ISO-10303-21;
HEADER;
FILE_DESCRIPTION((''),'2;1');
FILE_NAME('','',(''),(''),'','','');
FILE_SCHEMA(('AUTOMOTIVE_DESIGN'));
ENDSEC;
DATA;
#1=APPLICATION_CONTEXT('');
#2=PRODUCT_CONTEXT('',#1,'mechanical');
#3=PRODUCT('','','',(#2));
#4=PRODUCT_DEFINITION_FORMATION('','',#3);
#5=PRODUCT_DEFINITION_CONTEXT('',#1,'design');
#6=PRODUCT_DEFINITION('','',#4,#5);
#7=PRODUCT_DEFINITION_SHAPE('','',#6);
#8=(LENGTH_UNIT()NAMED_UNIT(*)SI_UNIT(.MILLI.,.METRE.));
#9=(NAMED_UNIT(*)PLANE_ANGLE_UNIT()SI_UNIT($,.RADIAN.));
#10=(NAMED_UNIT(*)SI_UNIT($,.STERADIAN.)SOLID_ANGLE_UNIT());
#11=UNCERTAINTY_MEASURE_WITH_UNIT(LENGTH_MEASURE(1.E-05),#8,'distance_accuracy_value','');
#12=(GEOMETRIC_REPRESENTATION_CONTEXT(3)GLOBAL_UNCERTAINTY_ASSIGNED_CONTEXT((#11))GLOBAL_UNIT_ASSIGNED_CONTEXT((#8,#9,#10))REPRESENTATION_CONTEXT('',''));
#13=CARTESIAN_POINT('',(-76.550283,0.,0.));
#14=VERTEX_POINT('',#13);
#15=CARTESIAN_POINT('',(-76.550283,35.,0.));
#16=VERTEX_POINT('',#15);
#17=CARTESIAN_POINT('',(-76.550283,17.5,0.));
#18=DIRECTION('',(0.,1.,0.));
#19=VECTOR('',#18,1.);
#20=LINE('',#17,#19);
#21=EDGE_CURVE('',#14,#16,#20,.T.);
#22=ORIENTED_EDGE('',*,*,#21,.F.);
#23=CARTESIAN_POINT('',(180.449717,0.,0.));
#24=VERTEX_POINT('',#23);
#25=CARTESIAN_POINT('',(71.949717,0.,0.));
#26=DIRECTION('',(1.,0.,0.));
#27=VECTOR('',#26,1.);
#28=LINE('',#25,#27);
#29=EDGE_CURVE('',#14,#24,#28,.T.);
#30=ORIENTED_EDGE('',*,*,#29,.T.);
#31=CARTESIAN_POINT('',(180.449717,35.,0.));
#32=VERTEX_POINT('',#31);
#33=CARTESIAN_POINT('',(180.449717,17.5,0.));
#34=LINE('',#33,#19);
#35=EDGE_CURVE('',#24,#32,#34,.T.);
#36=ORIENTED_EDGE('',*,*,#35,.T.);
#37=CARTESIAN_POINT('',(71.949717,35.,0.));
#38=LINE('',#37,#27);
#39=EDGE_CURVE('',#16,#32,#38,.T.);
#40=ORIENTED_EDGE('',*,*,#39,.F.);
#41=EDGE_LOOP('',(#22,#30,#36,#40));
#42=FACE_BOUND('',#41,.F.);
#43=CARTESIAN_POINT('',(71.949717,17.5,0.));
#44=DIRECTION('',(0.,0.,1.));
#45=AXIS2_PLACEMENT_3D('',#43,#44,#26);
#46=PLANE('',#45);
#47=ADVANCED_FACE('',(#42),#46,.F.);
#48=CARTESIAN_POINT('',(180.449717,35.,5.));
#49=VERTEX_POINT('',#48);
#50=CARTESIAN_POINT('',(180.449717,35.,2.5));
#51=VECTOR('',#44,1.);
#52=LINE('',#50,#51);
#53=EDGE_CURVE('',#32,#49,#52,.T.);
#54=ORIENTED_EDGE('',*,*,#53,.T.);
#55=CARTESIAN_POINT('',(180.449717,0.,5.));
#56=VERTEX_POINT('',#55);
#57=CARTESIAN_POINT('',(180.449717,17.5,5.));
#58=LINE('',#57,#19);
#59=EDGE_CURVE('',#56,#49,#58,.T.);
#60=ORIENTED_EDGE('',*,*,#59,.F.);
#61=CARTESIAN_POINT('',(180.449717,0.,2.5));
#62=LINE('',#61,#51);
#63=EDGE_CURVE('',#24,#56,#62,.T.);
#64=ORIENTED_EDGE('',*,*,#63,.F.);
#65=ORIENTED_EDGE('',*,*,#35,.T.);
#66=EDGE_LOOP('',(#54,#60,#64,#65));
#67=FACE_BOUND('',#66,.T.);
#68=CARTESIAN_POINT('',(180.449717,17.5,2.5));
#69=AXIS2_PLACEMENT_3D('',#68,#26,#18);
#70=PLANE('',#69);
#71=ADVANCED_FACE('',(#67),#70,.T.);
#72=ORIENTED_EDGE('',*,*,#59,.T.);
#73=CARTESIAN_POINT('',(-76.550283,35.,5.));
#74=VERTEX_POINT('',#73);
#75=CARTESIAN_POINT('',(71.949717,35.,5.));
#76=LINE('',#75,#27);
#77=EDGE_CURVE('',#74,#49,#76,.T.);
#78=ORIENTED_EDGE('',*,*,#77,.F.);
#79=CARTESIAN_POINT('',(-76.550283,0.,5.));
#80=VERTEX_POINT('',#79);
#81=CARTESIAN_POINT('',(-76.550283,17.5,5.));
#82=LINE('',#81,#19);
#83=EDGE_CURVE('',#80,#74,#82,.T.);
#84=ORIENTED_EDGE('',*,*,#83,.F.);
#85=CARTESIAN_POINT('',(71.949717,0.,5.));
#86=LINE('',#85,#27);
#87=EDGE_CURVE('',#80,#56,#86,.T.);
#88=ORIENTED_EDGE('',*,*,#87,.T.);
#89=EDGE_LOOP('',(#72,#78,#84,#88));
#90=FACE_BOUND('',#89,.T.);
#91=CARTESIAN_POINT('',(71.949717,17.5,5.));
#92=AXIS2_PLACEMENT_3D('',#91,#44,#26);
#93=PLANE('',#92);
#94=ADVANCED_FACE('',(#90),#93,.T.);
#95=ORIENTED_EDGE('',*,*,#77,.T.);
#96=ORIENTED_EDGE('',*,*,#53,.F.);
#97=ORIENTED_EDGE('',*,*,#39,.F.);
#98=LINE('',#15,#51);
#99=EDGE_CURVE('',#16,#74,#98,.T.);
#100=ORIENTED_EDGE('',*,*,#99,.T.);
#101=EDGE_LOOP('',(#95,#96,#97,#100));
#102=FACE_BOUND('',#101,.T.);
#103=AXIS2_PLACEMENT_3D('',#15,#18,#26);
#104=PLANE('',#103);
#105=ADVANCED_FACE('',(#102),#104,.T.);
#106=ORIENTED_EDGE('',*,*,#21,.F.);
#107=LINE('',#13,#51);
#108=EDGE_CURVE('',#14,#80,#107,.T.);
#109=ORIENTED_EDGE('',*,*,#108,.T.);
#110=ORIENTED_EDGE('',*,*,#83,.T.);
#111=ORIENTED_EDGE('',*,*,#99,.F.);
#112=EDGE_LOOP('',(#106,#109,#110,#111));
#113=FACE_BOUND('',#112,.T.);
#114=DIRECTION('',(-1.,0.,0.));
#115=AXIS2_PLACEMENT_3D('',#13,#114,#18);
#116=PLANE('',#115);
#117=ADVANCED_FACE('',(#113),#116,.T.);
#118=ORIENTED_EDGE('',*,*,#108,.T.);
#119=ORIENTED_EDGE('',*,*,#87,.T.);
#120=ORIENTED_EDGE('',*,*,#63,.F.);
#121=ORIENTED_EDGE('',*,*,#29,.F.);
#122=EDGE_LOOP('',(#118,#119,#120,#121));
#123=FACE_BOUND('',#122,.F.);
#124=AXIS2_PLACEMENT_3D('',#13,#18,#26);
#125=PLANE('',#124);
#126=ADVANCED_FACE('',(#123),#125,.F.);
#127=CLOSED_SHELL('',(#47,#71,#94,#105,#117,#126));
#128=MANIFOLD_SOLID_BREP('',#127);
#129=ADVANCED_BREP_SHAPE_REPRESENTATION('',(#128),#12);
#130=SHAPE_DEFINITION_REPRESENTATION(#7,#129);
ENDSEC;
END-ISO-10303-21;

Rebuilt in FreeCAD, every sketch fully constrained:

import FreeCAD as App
import Part
import Sketcher

V = App.Vector


def add_polygon(sketch, points):
    """Adds a closed chain of lines whose ends are joined by coincident constraints."""
    first, n = sketch.GeometryCount, len(points)
    for a, b in zip(points, points[1:] + points[:1]):
        sketch.addGeometry(Part.LineSegment(App.Vector(*a, 0), App.Vector(*b, 0)), False)
    for i in range(n):
        sketch.addConstraint(Sketcher.Constraint("Coincident", first + i, 2, first + (i + 1) % n, 1))

doc = App.newDocument("Part")
body = doc.addObject("PartDesign::Body", "Body")

# Sketch on XY plane
sketch1 = body.newObject("Sketcher::SketchObject", "Sketch")
sketch1.AttachmentSupport = (doc.getObject("XY_Plane"), [""])
sketch1.MapMode = "FlatFace"
add_polygon(sketch1, [(-77, 35), (-77, 0), (220, 0), (220, 35)])  # lines 0-3
sketch1.addConstraint([
    Sketcher.Constraint("Vertical", 0),
    Sketcher.Constraint("Horizontal", 1),
    Sketcher.Constraint("Vertical", 2),
    Sketcher.Constraint("Horizontal", 3),
    Sketcher.Constraint("PointOnObject", 0, 2, -1),
    Sketcher.Constraint("DistanceX", 1, 1, 1, 2, 297.0),
    Sketcher.Constraint("DistanceY", 0, 2, 0, 1, 35.0),
    Sketcher.Constraint("DistanceX", 0, 2, -1, 1, 76.550283),
])
pad1 = body.newObject("PartDesign::Pad", "Pad")
pad1.Profile = sketch1
pad1.Length = 5

# Sketch on YZ plane
sketch2 = body.newObject("Sketcher::SketchObject", "Sketch001")
sketch2.AttachmentSupport = (doc.getObject("YZ_Plane"), [""])
sketch2.MapMode = "FlatFace"
sketch2.AttachmentOffset = App.Placement(V(0, 0, 220.449717), App.Rotation())
add_polygon(sketch2, [(0, 5), (0, 0), (35, 0), (35, 5)])  # lines 0-3
sketch2.addConstraint([
    Sketcher.Constraint("Vertical", 0),
    Sketcher.Constraint("Horizontal", 1),
    Sketcher.Constraint("Vertical", 2),
    Sketcher.Constraint("Horizontal", 3),
    Sketcher.Constraint("Coincident", 0, 2, -1, 1),
    Sketcher.Constraint("DistanceX", 1, 1, 1, 2, 35.0),
    Sketcher.Constraint("DistanceY", 0, 2, 0, 1, 5.0),
])
pocket1 = body.newObject("PartDesign::Pocket", "Pocket")
pocket1.Profile = sketch2
pocket1.Length = 40

doc.recompute()
